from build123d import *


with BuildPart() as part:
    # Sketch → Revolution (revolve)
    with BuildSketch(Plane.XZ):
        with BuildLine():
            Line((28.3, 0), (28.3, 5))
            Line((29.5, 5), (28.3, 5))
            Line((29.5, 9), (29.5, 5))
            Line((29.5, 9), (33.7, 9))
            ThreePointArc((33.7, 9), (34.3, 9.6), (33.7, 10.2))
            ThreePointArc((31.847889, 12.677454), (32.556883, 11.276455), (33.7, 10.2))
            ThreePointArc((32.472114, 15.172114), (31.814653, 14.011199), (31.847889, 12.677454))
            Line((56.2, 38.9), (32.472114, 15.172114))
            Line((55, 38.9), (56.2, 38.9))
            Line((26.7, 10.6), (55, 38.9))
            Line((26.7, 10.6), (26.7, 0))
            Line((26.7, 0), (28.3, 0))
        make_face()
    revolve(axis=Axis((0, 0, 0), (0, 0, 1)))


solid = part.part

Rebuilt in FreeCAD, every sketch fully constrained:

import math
import FreeCAD as App
import Part
import Sketcher
from FreeCAD import Vector
Q = App.Units.Quantity

doc = App.newDocument("Part")
params = doc.addObject("Spreadsheet::Sheet", "Params")
for row, (alias, value) in enumerate([
    ("sketch1_radius", "0.6 mm"),
    ("sketch1_radius2", "2.499999 mm"),
    ("sketch1_height", "5 mm"),
    ("sketch1_height2", "4 mm"),
    ("sketch1_width", "1.2 mm"),
    ("revolution_angle", "360 deg"),
], start=1):
    params.set(f"A{row}", alias)
    params.set(f"B{row}", "=" + value)
    params.setAlias(f"B{row}", alias)

body = doc.addObject("PartDesign::Body", "Body")

sketch1 = body.newObject("Sketcher::SketchObject", "Sketch")
sketch1.AttachmentSupport = (doc.getObject("XZ_Plane"), [""])
sketch1.MapMode = "FlatFace"
sketch1.addGeometry(Part.LineSegment(Vector(28.3, 0, 0), Vector(28.3, 5, 0)), False)
sketch1.addGeometry(Part.LineSegment(Vector(28.3, 5, 0), Vector(29.5, 5, 0)), False)
sketch1.addGeometry(Part.LineSegment(Vector(29.5, 5, 0), Vector(29.5, 9, 0)), False)
sketch1.addGeometry(Part.LineSegment(Vector(29.5, 9, 0), Vector(33.7, 9, 0)), False)
sketch1.addGeometry(Part.ArcOfCircle(Part.Circle(Vector(33.7, 9.6, 0), Vector(0, 0, 1), 0.6), math.radians(-90), math.radians(90)), False)
sketch1.addGeometry(Part.ArcOfCircle(Part.Circle(Vector(36.2, 14, 0), Vector(0, 0, 1), 4.5), math.radians(-163), math.radians(-123)), False)
sketch1.addGeometry(Part.ArcOfCircle(Part.Circle(Vector(34.2, 13.4, 0), Vector(0, 0, 1), 2.5), math.radians(135), math.radians(197)), False)
sketch1.addGeometry(Part.LineSegment(Vector(32.5, 15.2, 0), Vector(56.2, 38.9, 0)), False)
sketch1.addGeometry(Part.LineSegment(Vector(56.2, 38.9, 0), Vector(55, 38.9, 0)), False)
sketch1.addGeometry(Part.LineSegment(Vector(55, 38.9, 0), Vector(26.7, 10.6, 0)), False)
sketch1.addGeometry(Part.LineSegment(Vector(26.7, 10.6, 0), Vector(26.7, 0, 0)), False)
sketch1.addGeometry(Part.LineSegment(Vector(26.7, 0, 0), Vector(28.3, 0, 0)), False)
sketch1.addConstraint(Sketcher.Constraint("Coincident", 0, 2, 1, 1))
sketch1.addConstraint(Sketcher.Constraint("Coincident", 1, 2, 2, 1))
sketch1.addConstraint(Sketcher.Constraint("Coincident", 2, 2, 3, 1))
sketch1.addConstraint(Sketcher.Constraint("Tangent", 3, 2, 4, 1))
sketch1.addConstraint(Sketcher.Constraint("Coincident", 4, 2, 5, 2))
sketch1.addConstraint(Sketcher.Constraint("Tangent", 5, 1, 6, 2))
sketch1.addConstraint(Sketcher.Constraint("Tangent", 6, 1, 7, 1))
sketch1.addConstraint(Sketcher.Constraint("Coincident", 7, 2, 8, 1))
sketch1.addConstraint(Sketcher.Constraint("Coincident", 8, 2, 9, 1))
sketch1.addConstraint(Sketcher.Constraint("Coincident", 9, 2, 10, 1))
sketch1.addConstraint(Sketcher.Constraint("Coincident", 10, 2, 11, 1))
sketch1.addConstraint(Sketcher.Constraint("Coincident", 11, 2, 0, 1))
sketch1.addConstraint(Sketcher.Constraint("Vertical", 0))
sketch1.addConstraint(Sketcher.Constraint("Horizontal", 1))
sketch1.addConstraint(Sketcher.Constraint("Vertical", 2))
sketch1.addConstraint(Sketcher.Constraint("Horizontal", 3))
sketch1.addConstraint(Sketcher.Constraint("Horizontal", 8))
sketch1.addConstraint(Sketcher.Constraint("Vertical", 10))
sketch1.addConstraint(Sketcher.Constraint("Horizontal", 11))
sketch1.addConstraint(Sketcher.Constraint("PointOnObject", 10, 2, -1))
sketch1.addConstraint(Sketcher.Constraint("Parallel", 7, 9))
sketch1.addConstraint(Sketcher.Constraint("Vertical", 3, 2, 4, 2))
sketch1.addConstraint(Sketcher.Constraint("Equal", 1, 8))
sketch1.addConstraint(Sketcher.Constraint("Radius", 4, Q("0.6 mm")))
sketch1.addConstraint(Sketcher.Constraint("Radius", 6, Q("2.499999 mm")))
sketch1.addConstraint(Sketcher.Constraint("DistanceY", 0, 1, 0, 2, Q("5 mm")))
sketch1.addConstraint(Sketcher.Constraint("DistanceY", 2, 1, 2, 2, Q("4 mm")))
sketch1.addConstraint(Sketcher.Constraint("Angle", 7, Q("45 deg")))
sketch1.addConstraint(Sketcher.Constraint("DistanceX", 1, 1, 1, 2, Q("1.2 mm")))
sketch1.addConstraint(Sketcher.Constraint("DistanceX", 3, 1, 3, 2, Q("4.2 mm")))
sketch1.addConstraint(Sketcher.Constraint("DistanceX", 11, 1, 11, 2, Q("1.6 mm")))
sketch1.addConstraint(Sketcher.Constraint("DistanceY", 10, 2, 10, 1, Q("10.6 mm")))
sketch1.addConstraint(Sketcher.Constraint("DistanceY", -1, 1, 5, 3, Q("14 mm")))
sketch1.addConstraint(Sketcher.Constraint("DistanceX", -1, 1, 8, 2, Q("55 mm")))
sketch1.addConstraint(Sketcher.Constraint("DistanceX", 5, 3, 7, 2, Q("20 mm")))
sketch1.addConstraint(Sketcher.Constraint("DistanceX", -1, 1, 4, 3, Q("33.7 mm")))
sketch1.setExpression("Constraints[23]", "Params.sketch1_radius")
sketch1.setExpression("Constraints[24]", "Params.sketch1_radius2")
sketch1.setExpression("Constraints[25]", "Params.sketch1_height")
sketch1.setExpression("Constraints[26]", "Params.sketch1_height2")
sketch1.setExpression("Constraints[28]", "Params.sketch1_width")
revolution = body.newObject("PartDesign::Revolution", "Revolution")
revolution.Profile = sketch1
revolution.ReferenceAxis = (sketch1, ["V_Axis"])
revolution.setExpression("Angle", "Params.revolution_angle")

doc.recompute()
